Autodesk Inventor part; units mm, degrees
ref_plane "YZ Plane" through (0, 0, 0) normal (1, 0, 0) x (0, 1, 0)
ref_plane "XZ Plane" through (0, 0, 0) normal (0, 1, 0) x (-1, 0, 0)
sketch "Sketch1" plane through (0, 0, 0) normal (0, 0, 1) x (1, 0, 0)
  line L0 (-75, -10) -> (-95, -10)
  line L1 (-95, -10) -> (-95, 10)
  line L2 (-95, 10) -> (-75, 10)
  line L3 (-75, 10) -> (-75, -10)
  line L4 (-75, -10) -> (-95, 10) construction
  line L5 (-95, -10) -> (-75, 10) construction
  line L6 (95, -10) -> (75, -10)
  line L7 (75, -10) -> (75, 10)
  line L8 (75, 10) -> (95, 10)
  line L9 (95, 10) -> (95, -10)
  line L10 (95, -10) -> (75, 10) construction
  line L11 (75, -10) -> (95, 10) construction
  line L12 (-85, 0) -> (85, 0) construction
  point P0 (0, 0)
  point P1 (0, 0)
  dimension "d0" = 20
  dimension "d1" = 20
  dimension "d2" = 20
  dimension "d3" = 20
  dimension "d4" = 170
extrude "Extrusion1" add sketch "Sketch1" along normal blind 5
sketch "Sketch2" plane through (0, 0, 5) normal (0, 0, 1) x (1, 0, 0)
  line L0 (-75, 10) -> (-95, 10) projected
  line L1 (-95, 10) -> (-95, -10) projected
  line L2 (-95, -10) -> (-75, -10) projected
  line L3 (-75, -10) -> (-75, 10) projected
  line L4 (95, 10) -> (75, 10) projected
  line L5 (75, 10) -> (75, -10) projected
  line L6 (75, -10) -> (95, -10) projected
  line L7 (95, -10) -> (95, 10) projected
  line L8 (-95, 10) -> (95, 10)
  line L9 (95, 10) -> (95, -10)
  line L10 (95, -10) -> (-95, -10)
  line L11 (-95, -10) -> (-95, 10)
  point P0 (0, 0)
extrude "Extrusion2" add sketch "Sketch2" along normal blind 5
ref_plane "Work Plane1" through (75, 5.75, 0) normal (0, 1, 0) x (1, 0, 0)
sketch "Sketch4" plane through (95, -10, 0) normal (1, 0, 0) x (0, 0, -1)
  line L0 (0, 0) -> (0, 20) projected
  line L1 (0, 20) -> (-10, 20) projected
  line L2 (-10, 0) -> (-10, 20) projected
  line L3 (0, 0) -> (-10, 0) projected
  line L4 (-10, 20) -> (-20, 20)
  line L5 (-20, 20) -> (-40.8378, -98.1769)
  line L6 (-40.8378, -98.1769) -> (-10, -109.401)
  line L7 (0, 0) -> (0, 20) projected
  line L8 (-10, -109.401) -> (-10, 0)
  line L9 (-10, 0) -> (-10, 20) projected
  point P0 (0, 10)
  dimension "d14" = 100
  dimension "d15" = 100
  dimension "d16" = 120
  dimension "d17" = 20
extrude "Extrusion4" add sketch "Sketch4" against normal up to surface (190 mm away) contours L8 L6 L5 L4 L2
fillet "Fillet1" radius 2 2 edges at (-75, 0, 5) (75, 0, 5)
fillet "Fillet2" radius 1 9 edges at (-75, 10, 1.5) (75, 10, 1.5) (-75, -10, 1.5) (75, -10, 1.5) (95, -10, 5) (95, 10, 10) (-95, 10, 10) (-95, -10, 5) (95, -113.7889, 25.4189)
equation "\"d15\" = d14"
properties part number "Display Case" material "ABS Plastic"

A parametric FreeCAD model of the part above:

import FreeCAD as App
import Part
import Sketcher
from FreeCAD import Vector
Q = App.Units.Quantity


def edges_at(feature, points):
    """Names of the edges that pass closest to the given points."""
    edges = feature.Shape.Edges
    near = lambda p: min(range(len(edges)), key=lambda i: edges[i].distToShape(Part.Vertex(*p))[0])
    return sorted({f"Edge{near(p) + 1}" for p in points})

doc = App.newDocument("Part")
body = doc.addObject("PartDesign::Body", "Body")
body.AllowCompound = True

# Sketch on XY plane
sketch1 = body.newObject("Sketcher::SketchObject", "Sketch")
sketch1.AttachmentSupport = (doc.getObject("XY_Plane"), [""])
sketch1.MapMode = "FlatFace"
sketch1.addGeometry([
    Part.LineSegment(Vector(-95, -10, 0), Vector(-75, -10, 0)),  # 0
    Part.LineSegment(Vector(-75, -10, 0), Vector(-75, 10, 0)),  # 1
    Part.LineSegment(Vector(-75, 10, 0), Vector(-95, 10, 0)),  # 2
    Part.LineSegment(Vector(-95, 10, 0), Vector(-95, -10, 0)),  # 3
    Part.LineSegment(Vector(75, -10, 0), Vector(95, -10, 0)),  # 4
    Part.LineSegment(Vector(95, -10, 0), Vector(95, 10, 0)),  # 5
    Part.LineSegment(Vector(95, 10, 0), Vector(75, 10, 0)),  # 6
    Part.LineSegment(Vector(75, 10, 0), Vector(75, -10, 0)),  # 7
], False)
sketch1.addConstraint([
    Sketcher.Constraint("Coincident", 0, 2, 1, 1),
    Sketcher.Constraint("Coincident", 1, 2, 2, 1),
    Sketcher.Constraint("Coincident", 2, 2, 3, 1),
    Sketcher.Constraint("Coincident", 3, 2, 0, 1),
    Sketcher.Constraint("Coincident", 4, 2, 5, 1),
    Sketcher.Constraint("Coincident", 5, 2, 6, 1),
    Sketcher.Constraint("Coincident", 6, 2, 7, 1),
    Sketcher.Constraint("Coincident", 7, 2, 4, 1),
    Sketcher.Constraint("Horizontal", 0),
    Sketcher.Constraint("Vertical", 1),
    Sketcher.Constraint("Horizontal", 2),
    Sketcher.Constraint("Vertical", 3),
    Sketcher.Constraint("Horizontal", 4),
    Sketcher.Constraint("Vertical", 5),
    Sketcher.Constraint("Horizontal", 6),
    Sketcher.Constraint("Vertical", 7),
    Sketcher.Constraint("Symmetric", 2, 2, 4, 2, -1, 1),
    Sketcher.Constraint("Symmetric", 0, 2, 6, 2, -1, 1),
    Sketcher.Constraint("Horizontal", 3, 2, 4, 2),
    Sketcher.Constraint("Equal", 6, 1),
    Sketcher.Constraint("DistanceX", 0, 1, 0, 2, 20.0),
    Sketcher.Constraint("DistanceX", 0, 2, 4, 2, 170.0),
])
pad1 = body.newObject("PartDesign::Pad", "Pad")
pad1.Profile = sketch1
pad1.Length = 5

# Sketch on XY plane
sketch2 = body.newObject("Sketcher::SketchObject", "Sketch001")
sketch2.AttachmentSupport = (doc.getObject("XY_Plane"), [""])
sketch2.MapMode = "FlatFace"
sketch2.AttachmentOffset = App.Placement(Vector(0, 0, 5), App.Rotation())
sketch2.addGeometry([
    Part.LineSegment(Vector(-95, -10, 0), Vector(95, -10, 0)),
    Part.LineSegment(Vector(95, -10, 0), Vector(95, 10, 0)),
    Part.LineSegment(Vector(95, 10, 0), Vector(-95, 10, 0)),
    Part.LineSegment(Vector(-95, 10, 0), Vector(-95, -10, 0)),
], False)
sketch2.addConstraint([
    Sketcher.Constraint("Coincident", 0, 2, 1, 1),
    Sketcher.Constraint("Coincident", 1, 2, 2, 1),
    Sketcher.Constraint("Coincident", 2, 2, 3, 1),
    Sketcher.Constraint("Coincident", 3, 2, 0, 1),
    Sketcher.Constraint("Horizontal", 0),
    Sketcher.Constraint("Vertical", 1),
    Sketcher.Constraint("Horizontal", 2),
    Sketcher.Constraint("Vertical", 3),
    Sketcher.Constraint("Symmetric", 0, 2, 2, 2, -1, 1),
    Sketcher.Constraint("DistanceX", 0, 1, 0, 2, 190.0),
    Sketcher.Constraint("DistanceY", 1, 1, 1, 2, 20.0),
])
pad2 = body.newObject("PartDesign::Pad", "Pad001")
pad2.Profile = sketch2
pad2.Length = 5

# Sketch on YZ plane
sketch3 = body.newObject("Sketcher::SketchObject", "Sketch002")
sketch3.AttachmentSupport = (doc.getObject("YZ_Plane"), [""])
sketch3.MapMode = "FlatFace"
sketch3.AttachmentOffset = App.Placement(Vector(0, 0, 95), App.Rotation())
sketch3.addGeometry([
    Part.LineSegment(Vector(-119, 10, 0), Vector(10, 10, 0)),
    Part.LineSegment(Vector(10, 10, 0), Vector(10, 20, 0)),
    Part.LineSegment(Vector(10, 20, 0), Vector(-108, 41, 0)),
    Part.LineSegment(Vector(-108, 41, 0), Vector(-119, 10, 0)),
], False)
sketch3.addConstraint([
    Sketcher.Constraint("Coincident", 0, 2, 1, 1),
    Sketcher.Constraint("Coincident", 1, 2, 2, 1),
    Sketcher.Constraint("Coincident", 2, 2, 3, 1),
    Sketcher.Constraint("Coincident", 3, 2, 0, 1),
    Sketcher.Constraint("Horizontal", 0),
    Sketcher.Constraint("Vertical", 1),
    Sketcher.Constraint("Distance", 2, 120.0),
    Sketcher.Constraint("DistanceY", -1, 1, 1, 2, 20.0),
    Sketcher.Constraint("DistanceY", 1, 1, 1, 2, 10.0),
    Sketcher.Constraint("Angle", 2, Q("170 deg")),
    Sketcher.Constraint("Angle", 3, Q("-110 deg")),
    Sketcher.Constraint("DistanceX", -1, 1, 0, 2, 10.0),
])
pad3 = body.newObject("PartDesign::Pad", "Pad002")
pad3.Profile = sketch3
pad3.Length = 190
pad3.Reversed = True
doc.recompute()

fillet = body.newObject("PartDesign::Fillet", "Fillet")
fillet.Base = (pad3, edges_at(pad3, [(-75, 0, 5), (75, 0, 5)]))
fillet.Radius = 2
doc.recompute()

fillet2 = body.newObject("PartDesign::Fillet", "Fillet001")
fillet2.Base = (fillet, edges_at(fillet, [
    (-75, 10, 1.5),
    (75, 10, 1.5),
    (-75, -10, 1.5),
    (75, -10, 1.5),
    (95, -10, 5),
    (95, 10, 10),
    (-95, 10, 10),
    (-95, -10, 5),
    (95, -113.789, 25.419),
]))
fillet2.Radius = 1

doc.recompute()
